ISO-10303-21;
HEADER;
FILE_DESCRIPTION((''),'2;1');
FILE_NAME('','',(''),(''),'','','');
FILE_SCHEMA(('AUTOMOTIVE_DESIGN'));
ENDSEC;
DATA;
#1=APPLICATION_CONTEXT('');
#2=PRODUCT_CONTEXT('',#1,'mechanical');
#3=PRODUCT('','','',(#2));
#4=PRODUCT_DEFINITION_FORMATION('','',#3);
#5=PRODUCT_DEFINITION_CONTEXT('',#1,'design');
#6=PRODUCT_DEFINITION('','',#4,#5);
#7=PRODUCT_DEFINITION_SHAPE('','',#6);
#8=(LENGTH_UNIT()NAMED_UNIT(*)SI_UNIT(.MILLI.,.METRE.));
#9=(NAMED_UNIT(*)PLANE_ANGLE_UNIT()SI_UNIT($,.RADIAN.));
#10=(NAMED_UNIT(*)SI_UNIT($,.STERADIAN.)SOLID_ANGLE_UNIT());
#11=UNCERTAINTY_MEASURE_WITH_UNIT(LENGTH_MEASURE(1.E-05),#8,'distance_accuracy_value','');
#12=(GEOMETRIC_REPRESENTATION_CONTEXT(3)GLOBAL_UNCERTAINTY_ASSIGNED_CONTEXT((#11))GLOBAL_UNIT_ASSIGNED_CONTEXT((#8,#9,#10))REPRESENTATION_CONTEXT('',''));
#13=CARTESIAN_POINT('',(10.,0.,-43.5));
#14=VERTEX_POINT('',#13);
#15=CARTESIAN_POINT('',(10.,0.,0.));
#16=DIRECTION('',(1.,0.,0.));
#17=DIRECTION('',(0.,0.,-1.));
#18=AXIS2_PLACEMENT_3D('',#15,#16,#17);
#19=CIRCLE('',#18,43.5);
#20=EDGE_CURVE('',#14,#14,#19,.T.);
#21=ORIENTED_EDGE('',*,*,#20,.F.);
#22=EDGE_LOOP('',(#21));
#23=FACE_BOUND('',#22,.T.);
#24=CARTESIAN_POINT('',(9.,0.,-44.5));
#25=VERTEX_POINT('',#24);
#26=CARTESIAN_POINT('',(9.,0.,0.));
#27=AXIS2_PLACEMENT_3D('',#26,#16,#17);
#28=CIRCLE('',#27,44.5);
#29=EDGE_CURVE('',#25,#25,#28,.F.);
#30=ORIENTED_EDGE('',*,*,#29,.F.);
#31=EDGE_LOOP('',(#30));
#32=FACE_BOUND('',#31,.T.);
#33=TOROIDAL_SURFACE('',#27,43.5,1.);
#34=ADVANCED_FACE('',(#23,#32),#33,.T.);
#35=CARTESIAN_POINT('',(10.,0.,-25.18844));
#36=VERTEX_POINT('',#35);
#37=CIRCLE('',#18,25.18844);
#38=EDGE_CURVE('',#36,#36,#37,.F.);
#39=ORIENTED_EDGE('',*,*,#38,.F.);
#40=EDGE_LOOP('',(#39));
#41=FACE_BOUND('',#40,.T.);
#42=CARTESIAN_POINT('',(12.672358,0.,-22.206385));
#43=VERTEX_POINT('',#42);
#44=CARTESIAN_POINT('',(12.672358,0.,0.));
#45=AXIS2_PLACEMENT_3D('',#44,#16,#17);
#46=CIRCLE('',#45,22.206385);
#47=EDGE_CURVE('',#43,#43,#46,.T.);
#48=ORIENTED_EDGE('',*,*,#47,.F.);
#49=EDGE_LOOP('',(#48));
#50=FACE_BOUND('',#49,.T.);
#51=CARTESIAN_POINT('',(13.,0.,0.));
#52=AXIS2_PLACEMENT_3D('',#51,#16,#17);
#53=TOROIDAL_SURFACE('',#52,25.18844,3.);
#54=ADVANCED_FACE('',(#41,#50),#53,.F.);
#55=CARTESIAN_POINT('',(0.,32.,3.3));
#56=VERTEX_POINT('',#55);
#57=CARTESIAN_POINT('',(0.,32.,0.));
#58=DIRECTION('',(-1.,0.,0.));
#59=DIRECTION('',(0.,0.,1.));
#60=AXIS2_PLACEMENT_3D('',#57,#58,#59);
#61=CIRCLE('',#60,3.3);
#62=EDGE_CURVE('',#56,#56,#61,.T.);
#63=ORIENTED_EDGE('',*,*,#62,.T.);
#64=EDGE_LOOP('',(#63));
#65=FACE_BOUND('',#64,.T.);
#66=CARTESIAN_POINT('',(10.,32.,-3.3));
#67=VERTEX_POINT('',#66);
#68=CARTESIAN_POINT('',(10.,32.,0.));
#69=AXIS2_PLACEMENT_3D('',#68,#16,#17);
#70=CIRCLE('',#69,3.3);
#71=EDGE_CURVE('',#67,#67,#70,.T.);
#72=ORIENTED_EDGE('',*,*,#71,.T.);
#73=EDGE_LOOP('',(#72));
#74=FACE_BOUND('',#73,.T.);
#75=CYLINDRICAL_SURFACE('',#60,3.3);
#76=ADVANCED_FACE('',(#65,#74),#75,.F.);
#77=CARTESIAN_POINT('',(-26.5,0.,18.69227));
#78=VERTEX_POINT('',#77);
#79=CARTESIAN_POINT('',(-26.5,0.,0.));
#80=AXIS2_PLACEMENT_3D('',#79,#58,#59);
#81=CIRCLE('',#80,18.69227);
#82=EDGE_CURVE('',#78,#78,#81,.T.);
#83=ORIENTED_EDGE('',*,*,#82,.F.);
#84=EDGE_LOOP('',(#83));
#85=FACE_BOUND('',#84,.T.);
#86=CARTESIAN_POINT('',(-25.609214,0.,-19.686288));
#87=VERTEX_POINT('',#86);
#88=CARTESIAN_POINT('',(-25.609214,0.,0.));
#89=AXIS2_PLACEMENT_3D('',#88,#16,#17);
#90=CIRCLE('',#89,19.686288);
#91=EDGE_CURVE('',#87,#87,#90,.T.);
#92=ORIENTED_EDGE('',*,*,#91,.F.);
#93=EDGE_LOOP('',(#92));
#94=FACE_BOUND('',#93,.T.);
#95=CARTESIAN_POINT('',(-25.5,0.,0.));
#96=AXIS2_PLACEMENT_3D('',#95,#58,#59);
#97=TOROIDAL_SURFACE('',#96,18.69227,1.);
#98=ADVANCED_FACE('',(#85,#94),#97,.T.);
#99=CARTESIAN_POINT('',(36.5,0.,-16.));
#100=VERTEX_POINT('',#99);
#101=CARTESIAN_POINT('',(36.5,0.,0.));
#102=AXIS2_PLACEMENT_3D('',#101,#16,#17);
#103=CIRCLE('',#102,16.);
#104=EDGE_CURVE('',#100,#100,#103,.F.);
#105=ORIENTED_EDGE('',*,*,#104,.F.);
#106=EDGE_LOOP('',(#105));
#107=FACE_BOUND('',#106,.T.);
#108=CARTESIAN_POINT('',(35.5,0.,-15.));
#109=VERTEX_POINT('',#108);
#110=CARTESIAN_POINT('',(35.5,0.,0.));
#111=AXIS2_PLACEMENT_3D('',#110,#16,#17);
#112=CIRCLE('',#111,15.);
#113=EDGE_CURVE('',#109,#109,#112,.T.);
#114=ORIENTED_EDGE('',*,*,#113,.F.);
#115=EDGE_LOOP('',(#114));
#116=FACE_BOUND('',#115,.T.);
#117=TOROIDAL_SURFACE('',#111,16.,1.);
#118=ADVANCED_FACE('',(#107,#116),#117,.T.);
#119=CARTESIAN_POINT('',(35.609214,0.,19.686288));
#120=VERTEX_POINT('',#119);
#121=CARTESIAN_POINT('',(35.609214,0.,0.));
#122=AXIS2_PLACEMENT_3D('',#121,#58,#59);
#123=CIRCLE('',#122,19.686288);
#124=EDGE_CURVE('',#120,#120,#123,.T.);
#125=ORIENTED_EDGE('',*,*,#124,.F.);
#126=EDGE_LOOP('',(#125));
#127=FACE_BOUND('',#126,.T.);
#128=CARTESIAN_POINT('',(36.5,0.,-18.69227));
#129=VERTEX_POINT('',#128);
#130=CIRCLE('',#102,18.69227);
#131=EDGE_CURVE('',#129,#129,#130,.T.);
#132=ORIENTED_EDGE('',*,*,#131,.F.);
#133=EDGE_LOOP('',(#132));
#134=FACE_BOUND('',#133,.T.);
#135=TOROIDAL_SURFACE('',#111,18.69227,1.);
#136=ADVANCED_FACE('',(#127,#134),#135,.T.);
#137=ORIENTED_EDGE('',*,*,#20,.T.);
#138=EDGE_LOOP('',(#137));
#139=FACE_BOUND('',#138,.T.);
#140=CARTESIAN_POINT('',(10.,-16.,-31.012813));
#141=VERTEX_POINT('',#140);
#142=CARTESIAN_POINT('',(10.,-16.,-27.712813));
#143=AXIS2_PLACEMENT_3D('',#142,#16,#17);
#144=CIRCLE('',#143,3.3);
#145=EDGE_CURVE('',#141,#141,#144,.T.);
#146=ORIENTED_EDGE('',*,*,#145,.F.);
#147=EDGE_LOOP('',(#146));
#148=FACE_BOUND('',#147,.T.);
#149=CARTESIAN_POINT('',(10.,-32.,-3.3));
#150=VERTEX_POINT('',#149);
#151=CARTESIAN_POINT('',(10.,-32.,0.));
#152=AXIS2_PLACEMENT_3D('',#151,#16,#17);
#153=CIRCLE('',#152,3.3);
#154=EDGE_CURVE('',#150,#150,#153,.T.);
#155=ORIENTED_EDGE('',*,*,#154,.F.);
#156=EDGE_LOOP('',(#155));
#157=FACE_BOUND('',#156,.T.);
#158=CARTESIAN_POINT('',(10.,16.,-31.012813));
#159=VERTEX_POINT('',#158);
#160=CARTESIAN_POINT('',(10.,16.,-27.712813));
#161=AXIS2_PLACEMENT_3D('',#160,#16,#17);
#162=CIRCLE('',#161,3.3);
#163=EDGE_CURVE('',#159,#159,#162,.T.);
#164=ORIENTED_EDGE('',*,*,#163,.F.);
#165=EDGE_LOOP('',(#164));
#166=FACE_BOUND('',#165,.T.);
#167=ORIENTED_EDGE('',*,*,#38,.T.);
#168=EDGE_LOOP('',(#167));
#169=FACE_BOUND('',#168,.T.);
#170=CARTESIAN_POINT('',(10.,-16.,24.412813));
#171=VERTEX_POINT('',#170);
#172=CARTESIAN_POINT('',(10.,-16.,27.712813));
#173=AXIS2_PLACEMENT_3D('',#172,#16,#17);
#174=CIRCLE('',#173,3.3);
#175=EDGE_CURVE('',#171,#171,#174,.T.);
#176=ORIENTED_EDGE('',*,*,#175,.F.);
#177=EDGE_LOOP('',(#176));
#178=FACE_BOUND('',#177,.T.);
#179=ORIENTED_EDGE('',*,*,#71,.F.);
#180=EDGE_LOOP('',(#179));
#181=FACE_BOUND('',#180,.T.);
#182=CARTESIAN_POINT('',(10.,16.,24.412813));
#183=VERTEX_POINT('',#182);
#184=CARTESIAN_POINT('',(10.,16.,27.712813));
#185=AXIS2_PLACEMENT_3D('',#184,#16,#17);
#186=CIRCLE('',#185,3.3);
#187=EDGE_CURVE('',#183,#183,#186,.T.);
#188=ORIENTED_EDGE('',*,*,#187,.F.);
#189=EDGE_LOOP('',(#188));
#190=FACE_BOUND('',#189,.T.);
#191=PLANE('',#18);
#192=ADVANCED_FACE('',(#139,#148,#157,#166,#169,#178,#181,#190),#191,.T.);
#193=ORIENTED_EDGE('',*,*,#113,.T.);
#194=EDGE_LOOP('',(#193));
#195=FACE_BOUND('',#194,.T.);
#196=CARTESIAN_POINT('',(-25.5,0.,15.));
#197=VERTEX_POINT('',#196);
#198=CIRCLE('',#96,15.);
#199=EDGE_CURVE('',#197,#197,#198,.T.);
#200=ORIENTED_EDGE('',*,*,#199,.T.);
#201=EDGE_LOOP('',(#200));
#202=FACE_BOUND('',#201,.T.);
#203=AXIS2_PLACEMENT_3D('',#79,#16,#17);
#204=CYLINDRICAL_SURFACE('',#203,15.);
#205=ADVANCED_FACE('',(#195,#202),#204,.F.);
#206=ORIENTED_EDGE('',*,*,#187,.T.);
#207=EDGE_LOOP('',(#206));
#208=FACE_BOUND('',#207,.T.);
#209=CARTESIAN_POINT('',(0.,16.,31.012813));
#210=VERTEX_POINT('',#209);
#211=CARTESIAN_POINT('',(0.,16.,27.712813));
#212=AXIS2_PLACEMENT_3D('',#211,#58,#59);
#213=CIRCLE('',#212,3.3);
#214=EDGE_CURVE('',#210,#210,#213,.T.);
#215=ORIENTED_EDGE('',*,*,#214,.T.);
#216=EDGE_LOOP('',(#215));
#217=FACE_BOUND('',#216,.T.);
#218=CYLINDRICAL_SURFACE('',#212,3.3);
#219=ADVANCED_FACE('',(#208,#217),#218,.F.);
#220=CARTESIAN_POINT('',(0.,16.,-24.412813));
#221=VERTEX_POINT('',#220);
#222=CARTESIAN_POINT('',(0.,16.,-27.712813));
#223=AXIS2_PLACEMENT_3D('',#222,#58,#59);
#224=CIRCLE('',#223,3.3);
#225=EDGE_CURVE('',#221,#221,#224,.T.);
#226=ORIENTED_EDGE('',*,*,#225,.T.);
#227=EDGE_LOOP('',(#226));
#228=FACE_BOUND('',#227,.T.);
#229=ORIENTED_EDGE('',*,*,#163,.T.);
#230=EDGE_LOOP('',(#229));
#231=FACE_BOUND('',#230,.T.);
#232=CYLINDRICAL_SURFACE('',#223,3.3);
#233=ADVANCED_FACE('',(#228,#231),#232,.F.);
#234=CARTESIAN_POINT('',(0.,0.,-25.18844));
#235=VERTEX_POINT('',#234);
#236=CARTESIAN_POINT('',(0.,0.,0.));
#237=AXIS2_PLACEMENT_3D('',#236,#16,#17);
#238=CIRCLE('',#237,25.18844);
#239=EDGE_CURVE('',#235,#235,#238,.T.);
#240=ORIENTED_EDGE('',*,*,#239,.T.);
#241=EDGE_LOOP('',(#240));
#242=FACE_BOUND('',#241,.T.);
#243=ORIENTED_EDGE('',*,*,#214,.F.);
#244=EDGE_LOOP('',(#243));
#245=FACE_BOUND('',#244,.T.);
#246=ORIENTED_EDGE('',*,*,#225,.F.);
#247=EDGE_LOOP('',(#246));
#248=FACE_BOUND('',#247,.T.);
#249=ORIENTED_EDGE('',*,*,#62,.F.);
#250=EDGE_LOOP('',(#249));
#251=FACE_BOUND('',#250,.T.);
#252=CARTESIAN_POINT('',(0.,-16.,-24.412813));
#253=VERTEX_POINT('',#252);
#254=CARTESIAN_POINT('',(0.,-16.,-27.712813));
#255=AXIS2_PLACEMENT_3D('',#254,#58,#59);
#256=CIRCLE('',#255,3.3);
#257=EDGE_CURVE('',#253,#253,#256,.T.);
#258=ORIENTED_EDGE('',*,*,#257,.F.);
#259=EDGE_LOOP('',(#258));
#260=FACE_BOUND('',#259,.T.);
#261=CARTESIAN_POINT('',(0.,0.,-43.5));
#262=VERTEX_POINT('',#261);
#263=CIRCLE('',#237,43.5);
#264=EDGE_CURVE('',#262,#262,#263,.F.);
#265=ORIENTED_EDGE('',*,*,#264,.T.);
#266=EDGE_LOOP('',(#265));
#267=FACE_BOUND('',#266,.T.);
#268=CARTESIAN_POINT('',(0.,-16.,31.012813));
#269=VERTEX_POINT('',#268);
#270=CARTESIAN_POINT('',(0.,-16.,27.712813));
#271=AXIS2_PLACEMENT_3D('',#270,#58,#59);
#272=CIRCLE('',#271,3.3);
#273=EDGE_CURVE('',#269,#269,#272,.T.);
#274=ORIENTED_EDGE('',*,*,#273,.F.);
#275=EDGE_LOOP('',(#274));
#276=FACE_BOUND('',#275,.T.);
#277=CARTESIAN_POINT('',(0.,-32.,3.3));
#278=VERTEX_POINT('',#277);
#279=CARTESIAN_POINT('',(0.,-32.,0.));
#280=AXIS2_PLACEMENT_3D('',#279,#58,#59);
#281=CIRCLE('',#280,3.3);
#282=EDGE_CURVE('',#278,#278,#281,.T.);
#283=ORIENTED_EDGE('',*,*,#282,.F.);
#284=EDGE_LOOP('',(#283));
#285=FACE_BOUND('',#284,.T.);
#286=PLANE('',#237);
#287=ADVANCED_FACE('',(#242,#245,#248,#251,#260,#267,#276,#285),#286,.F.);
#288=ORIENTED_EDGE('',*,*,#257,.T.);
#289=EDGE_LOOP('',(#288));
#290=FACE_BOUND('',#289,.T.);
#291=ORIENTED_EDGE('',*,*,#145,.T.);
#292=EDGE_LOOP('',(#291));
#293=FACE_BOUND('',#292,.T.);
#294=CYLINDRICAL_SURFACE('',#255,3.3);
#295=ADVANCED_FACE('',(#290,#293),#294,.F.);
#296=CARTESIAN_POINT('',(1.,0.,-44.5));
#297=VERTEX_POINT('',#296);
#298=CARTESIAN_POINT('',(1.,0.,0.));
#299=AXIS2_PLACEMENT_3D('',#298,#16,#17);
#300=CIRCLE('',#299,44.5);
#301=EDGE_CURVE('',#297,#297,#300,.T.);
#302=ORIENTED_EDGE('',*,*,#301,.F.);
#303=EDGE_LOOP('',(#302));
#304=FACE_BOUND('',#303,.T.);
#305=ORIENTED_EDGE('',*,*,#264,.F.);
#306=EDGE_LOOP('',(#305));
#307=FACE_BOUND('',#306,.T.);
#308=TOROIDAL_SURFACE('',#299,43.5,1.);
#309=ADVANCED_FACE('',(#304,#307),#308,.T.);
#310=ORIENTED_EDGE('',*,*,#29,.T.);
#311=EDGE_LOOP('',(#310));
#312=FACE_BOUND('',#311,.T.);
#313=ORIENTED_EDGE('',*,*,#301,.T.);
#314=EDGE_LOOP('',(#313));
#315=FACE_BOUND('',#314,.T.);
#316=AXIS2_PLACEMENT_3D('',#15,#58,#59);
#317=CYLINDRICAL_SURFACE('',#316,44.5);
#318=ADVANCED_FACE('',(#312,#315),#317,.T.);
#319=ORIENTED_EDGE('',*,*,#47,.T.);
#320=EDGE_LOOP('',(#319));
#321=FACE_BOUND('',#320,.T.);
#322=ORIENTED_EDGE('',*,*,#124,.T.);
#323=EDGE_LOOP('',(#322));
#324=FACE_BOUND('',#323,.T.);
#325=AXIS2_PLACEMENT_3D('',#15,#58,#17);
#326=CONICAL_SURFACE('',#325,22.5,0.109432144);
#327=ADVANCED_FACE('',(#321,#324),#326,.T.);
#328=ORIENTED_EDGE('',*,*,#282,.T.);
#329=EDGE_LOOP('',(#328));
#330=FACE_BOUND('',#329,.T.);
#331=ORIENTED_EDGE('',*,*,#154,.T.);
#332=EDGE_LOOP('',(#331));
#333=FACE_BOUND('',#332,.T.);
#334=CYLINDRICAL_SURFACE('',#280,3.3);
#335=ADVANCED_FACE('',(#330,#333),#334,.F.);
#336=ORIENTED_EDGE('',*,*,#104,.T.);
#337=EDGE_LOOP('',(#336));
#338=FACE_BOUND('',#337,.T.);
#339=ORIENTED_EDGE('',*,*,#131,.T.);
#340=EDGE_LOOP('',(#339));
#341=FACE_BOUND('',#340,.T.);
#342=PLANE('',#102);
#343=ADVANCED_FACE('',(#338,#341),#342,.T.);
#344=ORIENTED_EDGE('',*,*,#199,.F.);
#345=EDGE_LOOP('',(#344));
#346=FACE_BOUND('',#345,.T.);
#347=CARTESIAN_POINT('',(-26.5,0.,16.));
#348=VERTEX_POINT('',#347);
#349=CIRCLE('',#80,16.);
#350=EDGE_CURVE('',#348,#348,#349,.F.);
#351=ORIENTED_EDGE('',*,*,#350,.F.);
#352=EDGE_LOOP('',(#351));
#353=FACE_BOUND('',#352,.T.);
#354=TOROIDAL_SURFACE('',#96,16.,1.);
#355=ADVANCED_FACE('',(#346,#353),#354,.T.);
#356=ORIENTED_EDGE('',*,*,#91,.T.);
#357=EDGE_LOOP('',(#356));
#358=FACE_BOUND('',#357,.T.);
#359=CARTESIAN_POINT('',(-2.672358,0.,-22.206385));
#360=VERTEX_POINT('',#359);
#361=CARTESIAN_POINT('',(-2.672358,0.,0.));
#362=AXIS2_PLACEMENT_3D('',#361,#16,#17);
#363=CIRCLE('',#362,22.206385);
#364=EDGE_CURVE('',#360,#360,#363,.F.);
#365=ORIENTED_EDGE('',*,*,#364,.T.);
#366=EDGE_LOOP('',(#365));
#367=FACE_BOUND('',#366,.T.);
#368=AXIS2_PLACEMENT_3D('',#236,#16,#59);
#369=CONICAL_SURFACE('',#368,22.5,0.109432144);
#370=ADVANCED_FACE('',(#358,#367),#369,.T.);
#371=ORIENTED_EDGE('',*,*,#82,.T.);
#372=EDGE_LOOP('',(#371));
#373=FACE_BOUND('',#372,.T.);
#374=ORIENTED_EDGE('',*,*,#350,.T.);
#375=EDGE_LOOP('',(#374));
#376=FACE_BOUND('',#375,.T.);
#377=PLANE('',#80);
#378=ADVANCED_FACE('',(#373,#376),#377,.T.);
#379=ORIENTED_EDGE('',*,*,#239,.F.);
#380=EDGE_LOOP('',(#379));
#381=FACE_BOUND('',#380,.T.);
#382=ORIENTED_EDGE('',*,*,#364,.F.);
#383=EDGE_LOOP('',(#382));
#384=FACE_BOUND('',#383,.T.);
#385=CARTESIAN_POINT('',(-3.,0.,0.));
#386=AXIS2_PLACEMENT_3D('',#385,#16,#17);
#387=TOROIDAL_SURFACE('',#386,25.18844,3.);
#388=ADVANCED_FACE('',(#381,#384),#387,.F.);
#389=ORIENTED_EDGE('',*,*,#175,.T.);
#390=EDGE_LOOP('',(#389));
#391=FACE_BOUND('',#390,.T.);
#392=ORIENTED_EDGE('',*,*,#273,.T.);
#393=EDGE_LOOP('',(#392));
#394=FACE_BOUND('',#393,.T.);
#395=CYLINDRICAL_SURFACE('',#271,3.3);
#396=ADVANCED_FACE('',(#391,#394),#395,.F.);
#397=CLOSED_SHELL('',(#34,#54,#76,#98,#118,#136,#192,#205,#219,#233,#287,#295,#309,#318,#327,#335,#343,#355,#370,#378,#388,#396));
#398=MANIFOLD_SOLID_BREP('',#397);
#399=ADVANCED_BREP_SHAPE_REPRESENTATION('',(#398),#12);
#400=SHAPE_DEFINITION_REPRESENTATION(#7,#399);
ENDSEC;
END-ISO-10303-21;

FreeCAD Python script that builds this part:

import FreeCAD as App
import Part
import Sketcher
Q = App.Units.Quantity


def edges_at(feature, points):
    """Names of the edges that pass closest to the given points."""
    edges = feature.Shape.Edges
    near = lambda p: min(range(len(edges)), key=lambda i: edges[i].distToShape(Part.Vertex(*p))[0])
    return sorted({f"Edge{near(p) + 1}" for p in points})

doc = App.newDocument("Part")
body = doc.addObject("PartDesign::Body", "Body")

# Sketch on YZ plane
sketch1 = body.newObject("Sketcher::SketchObject", "Sketch")
sketch1.AttachmentSupport = (doc.getObject("YZ_Plane"), [""])
sketch1.MapMode = "FlatFace"
sketch1.addGeometry(Part.Circle(App.Vector(0, 0, 0), App.Vector(0, 0, 1), 44), False)
sketch1.addConstraint([
    Sketcher.Constraint("Coincident", 0, 3, -1, 1),
    Sketcher.Constraint("Diameter", 0, Q("89 mm")),
])
pad1 = body.newObject("PartDesign::Pad", "Pad")
pad1.Profile = sketch1
pad1.Length = 10

# Sketch on YZ plane
sketch2 = body.newObject("Sketcher::SketchObject", "Sketch001")
sketch2.AttachmentSupport = (doc.getObject("YZ_Plane"), [""])
sketch2.MapMode = "FlatFace"
sketch2.addGeometry(Part.Circle(App.Vector(0, 0, 0), App.Vector(0, 0, 1), 22), False)
sketch2.addConstraint([
    Sketcher.Constraint("Coincident", 0, 3, -1, 1),
    Sketcher.Constraint("Diameter", 0, Q("45 mm")),
])
pad2 = body.newObject("PartDesign::Pad", "Pad001")
pad2.Profile = sketch2
pad2.Length = 26.5
pad2.Reversed = True
pad2.TaperAngle = -6.27

# Sketch on YZ plane
sketch3 = body.newObject("Sketcher::SketchObject", "Sketch002")
sketch3.AttachmentSupport = (doc.getObject("YZ_Plane"), [""])
sketch3.MapMode = "FlatFace"
sketch3.AttachmentOffset = App.Placement(App.Vector(0, 0, 10), App.Rotation())
sketch3.addGeometry(Part.Circle(App.Vector(0, 0, 0), App.Vector(0, 0, 1), 22), False)
sketch3.addConstraint([
    Sketcher.Constraint("Coincident", 0, 3, -1, 1),
    Sketcher.Constraint("Diameter", 0, Q("45 mm")),
])
pad3 = body.newObject("PartDesign::Pad", "Pad002")
pad3.Profile = sketch3
pad3.Length = 26.5
pad3.TaperAngle = -6.27
doc.recompute()

fillet = body.newObject("PartDesign::Fillet", "Fillet")
fillet.Base = (pad3, edges_at(pad3, [(10, 0, 22.5)]))
fillet.Radius = 3
doc.recompute()

fillet2 = body.newObject("PartDesign::Fillet", "Fillet001")
fillet2.Base = (fillet, edges_at(fillet, [(0, 0, -22.5)]))
fillet2.Radius = 3

# Sketch on YZ plane
sketch4 = body.newObject("Sketcher::SketchObject", "Sketch003")
sketch4.AttachmentSupport = (doc.getObject("YZ_Plane"), [""])
sketch4.MapMode = "FlatFace"
sketch4.AttachmentOffset = App.Placement(App.Vector(0, 0, 36.5), App.Rotation())
sketch4.addGeometry(Part.Circle(App.Vector(0, 0, 0), App.Vector(0, 0, 1), 15), False)
sketch4.addConstraint([
    Sketcher.Constraint("Coincident", 0, 3, -1, 1),
    Sketcher.Constraint("Diameter", 0, Q("30 mm")),
])
pocket1 = body.newObject("PartDesign::Pocket", "Pocket")
pocket1.Profile = sketch4
pocket1.Type = "ThroughAll"
doc.recompute()

fillet3 = body.newObject("PartDesign::Fillet", "Fillet002")
fillet3.Base = (pocket1, edges_at(pocket1, [(36.5, 0, 19.588), (36.5, 0, 15)]))
fillet3.Radius = 1
doc.recompute()

fillet4 = body.newObject("PartDesign::Fillet", "Fillet003")
fillet4.Base = (fillet3, edges_at(fillet3, [(-26.5, 0, 15), (-26.5, 0, -19.588)]))
fillet4.Radius = 1
doc.recompute()

fillet5 = body.newObject("PartDesign::Fillet", "Fillet004")
fillet5.Base = (fillet4, edges_at(fillet4, [(0, 0, 44.5), (10, 0, 44.5)]))
fillet5.Radius = 1

# Sketch on YZ plane
sketch5 = body.newObject("Sketcher::SketchObject", "Sketch004")
sketch5.AttachmentSupport = (doc.getObject("YZ_Plane"), [""])
sketch5.MapMode = "FlatFace"
sketch5.addGeometry(Part.Circle(App.Vector(32, 0, 0), App.Vector(0, 0, 1), 3.3), False)
sketch5.addConstraint([
    Sketcher.Constraint("PointOnObject", 0, 3, -1),
    Sketcher.Constraint("Diameter", 0, Q("6.6 mm")),
    Sketcher.Constraint("DistanceX", -1, 1, 0, 3, Q("32 mm")),
])
doc.recompute()
hole = body.newObject("PartDesign::Hole", "Hole")
hole.Profile = sketch5
hole.ThreadType = "None"
hole.Diameter = 6.6
hole.DepthType = "ThroughAll"
hole.Reversed = True
doc.recompute()

polarpattern = body.newObject("PartDesign::PolarPattern", "PolarPattern")
polarpattern.Originals = [hole]
polarpattern.Axis = (doc.getObject("X_Axis"), [""])
polarpattern.Angle = 360
polarpattern.Occurrences = 6
body.Tip = polarpattern

doc.recompute()
